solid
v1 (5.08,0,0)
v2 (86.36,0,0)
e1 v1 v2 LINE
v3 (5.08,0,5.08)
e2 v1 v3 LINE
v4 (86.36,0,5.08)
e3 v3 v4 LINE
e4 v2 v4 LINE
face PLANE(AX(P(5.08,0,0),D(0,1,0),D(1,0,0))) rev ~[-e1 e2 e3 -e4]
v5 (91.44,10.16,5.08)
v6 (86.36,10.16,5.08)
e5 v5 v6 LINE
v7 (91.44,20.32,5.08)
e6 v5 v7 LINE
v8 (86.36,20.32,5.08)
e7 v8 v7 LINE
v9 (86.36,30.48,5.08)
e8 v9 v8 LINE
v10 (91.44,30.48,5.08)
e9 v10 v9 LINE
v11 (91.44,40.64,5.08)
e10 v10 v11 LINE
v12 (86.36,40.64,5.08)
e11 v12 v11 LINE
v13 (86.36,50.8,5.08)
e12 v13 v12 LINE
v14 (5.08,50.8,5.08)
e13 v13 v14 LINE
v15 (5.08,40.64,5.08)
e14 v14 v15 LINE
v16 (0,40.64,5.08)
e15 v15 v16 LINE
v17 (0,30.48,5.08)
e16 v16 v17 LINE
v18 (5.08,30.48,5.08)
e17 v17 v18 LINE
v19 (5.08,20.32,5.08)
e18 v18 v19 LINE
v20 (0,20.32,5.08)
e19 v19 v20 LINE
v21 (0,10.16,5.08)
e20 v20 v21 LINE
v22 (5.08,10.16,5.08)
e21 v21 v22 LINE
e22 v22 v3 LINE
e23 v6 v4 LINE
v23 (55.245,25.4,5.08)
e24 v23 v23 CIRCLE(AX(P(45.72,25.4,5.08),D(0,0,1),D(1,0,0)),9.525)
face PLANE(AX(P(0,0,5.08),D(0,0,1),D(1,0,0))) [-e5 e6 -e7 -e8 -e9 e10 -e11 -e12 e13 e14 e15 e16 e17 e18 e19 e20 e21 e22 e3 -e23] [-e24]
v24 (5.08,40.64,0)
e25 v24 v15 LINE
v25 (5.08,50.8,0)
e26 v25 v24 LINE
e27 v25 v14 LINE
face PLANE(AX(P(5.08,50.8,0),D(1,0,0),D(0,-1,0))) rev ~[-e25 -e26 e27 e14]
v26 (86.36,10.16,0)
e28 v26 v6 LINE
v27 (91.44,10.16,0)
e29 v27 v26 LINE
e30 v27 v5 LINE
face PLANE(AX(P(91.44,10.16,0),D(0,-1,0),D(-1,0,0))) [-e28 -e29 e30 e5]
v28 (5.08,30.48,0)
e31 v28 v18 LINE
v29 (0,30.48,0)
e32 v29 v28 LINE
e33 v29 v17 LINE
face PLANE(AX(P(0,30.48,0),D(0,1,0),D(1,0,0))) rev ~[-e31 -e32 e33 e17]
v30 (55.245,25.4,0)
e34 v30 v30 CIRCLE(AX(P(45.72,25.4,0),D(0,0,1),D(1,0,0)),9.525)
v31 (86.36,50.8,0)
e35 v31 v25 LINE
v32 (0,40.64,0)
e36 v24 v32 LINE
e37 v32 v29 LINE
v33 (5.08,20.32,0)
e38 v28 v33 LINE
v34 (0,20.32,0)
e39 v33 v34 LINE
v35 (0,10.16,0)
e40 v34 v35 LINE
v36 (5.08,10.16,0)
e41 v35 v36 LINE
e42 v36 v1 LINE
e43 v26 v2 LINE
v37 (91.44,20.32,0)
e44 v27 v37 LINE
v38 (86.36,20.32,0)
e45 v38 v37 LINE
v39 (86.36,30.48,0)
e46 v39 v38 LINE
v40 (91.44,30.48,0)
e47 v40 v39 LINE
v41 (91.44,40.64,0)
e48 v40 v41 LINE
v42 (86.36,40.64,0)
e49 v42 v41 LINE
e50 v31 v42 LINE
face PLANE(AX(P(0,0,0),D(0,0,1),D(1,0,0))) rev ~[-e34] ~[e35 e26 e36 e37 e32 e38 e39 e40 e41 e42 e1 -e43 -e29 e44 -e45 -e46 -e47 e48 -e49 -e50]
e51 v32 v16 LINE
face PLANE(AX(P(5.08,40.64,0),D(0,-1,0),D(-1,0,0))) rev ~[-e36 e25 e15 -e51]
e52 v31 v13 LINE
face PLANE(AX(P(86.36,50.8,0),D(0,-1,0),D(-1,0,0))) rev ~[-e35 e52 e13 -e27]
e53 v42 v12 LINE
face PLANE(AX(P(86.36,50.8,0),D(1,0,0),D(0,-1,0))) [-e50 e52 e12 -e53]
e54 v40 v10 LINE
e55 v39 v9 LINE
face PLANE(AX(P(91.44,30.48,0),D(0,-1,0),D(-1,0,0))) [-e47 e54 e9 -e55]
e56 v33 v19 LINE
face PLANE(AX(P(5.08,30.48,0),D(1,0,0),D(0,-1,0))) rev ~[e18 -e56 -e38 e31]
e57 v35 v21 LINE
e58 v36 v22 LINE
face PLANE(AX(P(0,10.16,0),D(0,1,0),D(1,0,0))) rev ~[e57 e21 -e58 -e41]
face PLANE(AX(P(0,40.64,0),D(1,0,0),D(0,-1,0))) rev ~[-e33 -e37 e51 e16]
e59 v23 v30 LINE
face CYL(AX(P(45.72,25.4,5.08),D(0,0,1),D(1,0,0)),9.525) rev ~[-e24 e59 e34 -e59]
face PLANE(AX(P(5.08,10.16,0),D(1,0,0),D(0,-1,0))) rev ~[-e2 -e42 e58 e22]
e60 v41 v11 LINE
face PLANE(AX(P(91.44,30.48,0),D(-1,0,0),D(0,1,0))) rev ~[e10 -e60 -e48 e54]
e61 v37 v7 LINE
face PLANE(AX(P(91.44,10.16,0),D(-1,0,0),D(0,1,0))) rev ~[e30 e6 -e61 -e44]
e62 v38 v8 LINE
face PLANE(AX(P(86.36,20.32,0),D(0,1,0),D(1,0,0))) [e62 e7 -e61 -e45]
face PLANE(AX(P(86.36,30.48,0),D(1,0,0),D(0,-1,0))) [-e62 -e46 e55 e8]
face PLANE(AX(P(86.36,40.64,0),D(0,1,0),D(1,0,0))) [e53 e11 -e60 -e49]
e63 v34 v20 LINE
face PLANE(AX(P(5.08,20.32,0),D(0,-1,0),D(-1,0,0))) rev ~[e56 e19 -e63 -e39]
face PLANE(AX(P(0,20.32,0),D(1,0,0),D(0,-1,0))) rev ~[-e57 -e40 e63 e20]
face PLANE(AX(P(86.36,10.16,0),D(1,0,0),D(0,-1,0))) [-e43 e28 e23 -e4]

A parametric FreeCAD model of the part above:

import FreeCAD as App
import Part
import Sketcher

V = App.Vector
Q = App.Units.Quantity


def add_polygon(sketch, points):
    """Adds a closed chain of lines whose ends are joined by coincident constraints."""
    first, n = sketch.GeometryCount, len(points)
    for a, b in zip(points, points[1:] + points[:1]):
        sketch.addGeometry(Part.LineSegment(App.Vector(*a, 0), App.Vector(*b, 0)), False)
    for i in range(n):
        sketch.addConstraint(Sketcher.Constraint("Coincident", first + i, 2, first + (i + 1) % n, 1))

doc = App.newDocument("Part")
params = doc.addObject("Spreadsheet::Sheet", "Params")
for row, (alias, value) in enumerate([
    ("sketch1_width", "0.2 in"),
    ("sketch1_height", "0.4 in"),
    ("pad1_length", "0.2 in"),
    ("sketch2_diameter", "0.75 in"),
    ("pocket1_length", "1 in"),
], start=1):
    params.set(f"A{row}", alias)
    params.set(f"B{row}", "=" + value)
    params.setAlias(f"B{row}", alias)

body = doc.addObject("PartDesign::Body", "Body")

sketch1 = body.newObject("Sketcher::SketchObject", "Sketch")
sketch1.AttachmentSupport = (doc.getObject("XY_Plane"), [""])
sketch1.MapMode = "FlatFace"
add_polygon(sketch1, [(5, 10), (5, 0), (86, 0), (86, 10), (91, 10), (91, 20), (86, 20), (86, 30), (91, 30), (91, 41), (86, 41), (86, 51), (5, 51), (5, 41), (0, 41), (0, 30), (5, 30), (5, 20), (0, 20), (0, 10)])
sketch1.addConstraint([
    Sketcher.Constraint("Vertical", 0),
    Sketcher.Constraint("Horizontal", 1),
    Sketcher.Constraint("Vertical", 2),
    Sketcher.Constraint("Horizontal", 3),
    Sketcher.Constraint("Vertical", 4),
    Sketcher.Constraint("Horizontal", 5),
    Sketcher.Constraint("Vertical", 6),
    Sketcher.Constraint("Horizontal", 7),
    Sketcher.Constraint("Vertical", 8),
    Sketcher.Constraint("Horizontal", 9),
    Sketcher.Constraint("Vertical", 10),
    Sketcher.Constraint("Horizontal", 11),
    Sketcher.Constraint("Vertical", 12),
    Sketcher.Constraint("Horizontal", 13),
    Sketcher.Constraint("Vertical", 14),
    Sketcher.Constraint("Horizontal", 15),
    Sketcher.Constraint("Vertical", 16),
    Sketcher.Constraint("Horizontal", 17),
    Sketcher.Constraint("Vertical", 18),
    Sketcher.Constraint("Horizontal", 19),
    Sketcher.Constraint("PointOnObject", 0, 2, -1),
    Sketcher.Constraint("PointOnObject", 13, 2, -2),
    Sketcher.Constraint("PointOnObject", 17, 2, -2),
    Sketcher.Constraint("Horizontal", 9, 2, 12, 2),
    Sketcher.Constraint("Horizontal", 7, 2, 14, 2),
    Sketcher.Constraint("Horizontal", 5, 2, 16, 2),
    Sketcher.Constraint("Horizontal", 3, 2, 18, 2),
    Sketcher.Constraint("Vertical", 2, 2, 5, 2),
    Sketcher.Constraint("Vertical", 4, 2, 7, 2),
    Sketcher.Constraint("Vertical", 6, 2, 9, 2),
    Sketcher.Constraint("Vertical", 0, 2, 11, 2),
    Sketcher.Constraint("Vertical", 12, 2, 15, 2),
    Sketcher.Constraint("Equal", 9, 13),
    Sketcher.Constraint("Equal", 2, 4),
    Sketcher.Constraint("Equal", 4, 6),
    Sketcher.Constraint("Equal", 6, 8),
    Sketcher.Constraint("Equal", 8, 10),
    Sketcher.Constraint("DistanceX", 3, 1, 3, 2, Q("0.2 in")),
    Sketcher.Constraint("DistanceY", 0, 2, 0, 1, Q("0.4 in")),
    Sketcher.Constraint("DistanceX", -1, 1, 3, 2, Q("3.6 in")),
])
sketch1.setExpression("Constraints[57]", "Params.sketch1_width")
sketch1.setExpression("Constraints[58]", "Params.sketch1_height")
pad1 = body.newObject("PartDesign::Pad", "Pad")
pad1.Profile = sketch1
pad1.setExpression("Length", "Params.pad1_length")

sketch2 = body.newObject("Sketcher::SketchObject", "Sketch001")
sketch2.AttachmentSupport = (doc.getObject("XY_Plane"), [""])
sketch2.MapMode = "FlatFace"
sketch2.AttachmentOffset = App.Placement(V(0, 0, 0.2 * 25.4), App.Rotation())
sketch2.addGeometry(Part.Circle(V(46, 25, 0), V(0, 0, 1), 10), False)
sketch2.addConstraint([
    Sketcher.Constraint("Diameter", 0, Q("0.75 in")),
    Sketcher.Constraint("DistanceY", -1, 1, 0, 3, Q("1 in")),
    Sketcher.Constraint("DistanceX", -1, 1, 0, 3, Q("1.8 in")),
])
sketch2.setExpression("Constraints[0]", "Params.sketch2_diameter")
pocket1 = body.newObject("PartDesign::Pocket", "Pocket")
pocket1.Profile = sketch2
pocket1.setExpression("Length", "Params.pocket1_length")

doc.recompute()
